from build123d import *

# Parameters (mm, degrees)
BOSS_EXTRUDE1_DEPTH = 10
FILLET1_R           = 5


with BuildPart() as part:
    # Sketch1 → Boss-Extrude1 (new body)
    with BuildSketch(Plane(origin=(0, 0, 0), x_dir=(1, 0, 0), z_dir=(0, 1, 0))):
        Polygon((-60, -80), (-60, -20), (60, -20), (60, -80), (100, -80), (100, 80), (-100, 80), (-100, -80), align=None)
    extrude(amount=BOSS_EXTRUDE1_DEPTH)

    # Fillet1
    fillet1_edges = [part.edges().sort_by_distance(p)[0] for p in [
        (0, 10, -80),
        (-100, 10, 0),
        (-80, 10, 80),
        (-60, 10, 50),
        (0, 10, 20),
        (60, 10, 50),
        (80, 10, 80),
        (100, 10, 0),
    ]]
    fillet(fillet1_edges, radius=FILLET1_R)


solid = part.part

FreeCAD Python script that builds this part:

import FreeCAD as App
import Part
import Sketcher

V = App.Vector
Q = App.Units.Quantity


def edges_at(feature, points):
    """Names of the edges that pass closest to the given points."""
    edges = feature.Shape.Edges
    near = lambda p: min(range(len(edges)), key=lambda i: edges[i].distToShape(Part.Vertex(*p))[0])
    return sorted({f"Edge{near(p) + 1}" for p in points})


def add_polygon(sketch, points):
    """Adds a closed chain of lines whose ends are joined by coincident constraints."""
    first, n = sketch.GeometryCount, len(points)
    for a, b in zip(points, points[1:] + points[:1]):
        sketch.addGeometry(Part.LineSegment(App.Vector(*a, 0), App.Vector(*b, 0)), False)
    for i in range(n):
        sketch.addConstraint(Sketcher.Constraint("Coincident", first + i, 2, first + (i + 1) % n, 1))

doc = App.newDocument("Part")
body = doc.addObject("PartDesign::Body", "Body")

# Sketch on XZ plane
sketch1 = doc.addObject("Sketcher::SketchObject", "Sketch")
body.addObject(sketch1)
sketch1.AttachmentSupport = (doc.XZ_Plane, [""])
sketch1.MapMode = "FlatFace"
add_polygon(sketch1, [(-60, 80), (-60, 20), (60, 20), (60, 80), (100, 80), (100, -80), (-100, -80), (-100, 80)])  # lines 0-7
sketch1.addConstraint(Sketcher.Constraint("Vertical", 0))
sketch1.addConstraint(Sketcher.Constraint("Horizontal", 1))
sketch1.addConstraint(Sketcher.Constraint("Vertical", 2))
sketch1.addConstraint(Sketcher.Constraint("Horizontal", 3))
sketch1.addConstraint(Sketcher.Constraint("Vertical", 4))
sketch1.addConstraint(Sketcher.Constraint("Horizontal", 5))
sketch1.addConstraint(Sketcher.Constraint("Vertical", 6))
sketch1.addConstraint(Sketcher.Constraint("Horizontal", 7))
sketch1.addConstraint(Sketcher.Constraint("Symmetric", 3, 2, 5, 2, -1, 1))
sketch1.addConstraint(Sketcher.Constraint("Symmetric", 2, 2, 7, 2, -2))
sketch1.addConstraint(Sketcher.Constraint("DistanceX", 1, 1, 1, 2, Q("120 mm")))
sketch1.addConstraint(Sketcher.Constraint("DistanceX", 3, 1, 3, 2, Q("40 mm")))
sketch1.addConstraint(Sketcher.Constraint("DistanceY", 0, 2, 0, 1, Q("60 mm")))
sketch1.addConstraint(Sketcher.Constraint("DistanceY", 4, 2, 4, 1, Q("160 mm")))
pad1 = doc.addObject("PartDesign::Pad", "Pad")
body.addObject(pad1)
pad1.Profile = sketch1
pad1.Length = 10
pad1.Reversed = True
doc.recompute()

fillet = doc.addObject("PartDesign::Fillet", "Fillet")
body.addObject(fillet)
fillet.Base = (pad1, edges_at(pad1, [
    (0, 10, -80),
    (-100, 10, 0),
    (-80, 10, 80),
    (-60, 10, 50),
    (0, 10, 20),
    (60, 10, 50),
    (80, 10, 80),
    (100, 10, 0),
]))
fillet.Radius = 5

doc.recompute()
